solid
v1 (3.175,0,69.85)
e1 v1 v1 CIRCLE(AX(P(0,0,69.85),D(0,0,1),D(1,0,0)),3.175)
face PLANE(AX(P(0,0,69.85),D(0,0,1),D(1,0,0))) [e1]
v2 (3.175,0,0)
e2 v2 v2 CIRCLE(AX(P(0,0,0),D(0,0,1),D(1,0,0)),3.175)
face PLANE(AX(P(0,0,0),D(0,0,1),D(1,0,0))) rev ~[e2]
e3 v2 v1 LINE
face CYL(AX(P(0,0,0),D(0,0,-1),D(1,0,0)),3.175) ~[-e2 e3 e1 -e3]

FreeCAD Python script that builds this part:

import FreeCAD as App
import Part
import Sketcher
Q = App.Units.Quantity

doc = App.newDocument("Part")
body = doc.addObject("PartDesign::Body", "Body")

sketch1 = body.newObject("Sketcher::SketchObject", "Sketch")
sketch1.AttachmentSupport = (doc.getObject("XY_Plane"), [""])
sketch1.MapMode = "FlatFace"
sketch1.addGeometry(Part.Circle(App.Vector(0, 0, 0), App.Vector(0, 0, 1), 3.2), False)
sketch1.addConstraint([
    Sketcher.Constraint("Coincident", 0, 3, -1, 1),
    Sketcher.Constraint("Diameter", 0, Q("0.25 in")),
])
pad1 = body.newObject("PartDesign::Pad", "Pad")
pad1.Profile = sketch1
pad1.Length = Q("2.75 in")

doc.recompute()
